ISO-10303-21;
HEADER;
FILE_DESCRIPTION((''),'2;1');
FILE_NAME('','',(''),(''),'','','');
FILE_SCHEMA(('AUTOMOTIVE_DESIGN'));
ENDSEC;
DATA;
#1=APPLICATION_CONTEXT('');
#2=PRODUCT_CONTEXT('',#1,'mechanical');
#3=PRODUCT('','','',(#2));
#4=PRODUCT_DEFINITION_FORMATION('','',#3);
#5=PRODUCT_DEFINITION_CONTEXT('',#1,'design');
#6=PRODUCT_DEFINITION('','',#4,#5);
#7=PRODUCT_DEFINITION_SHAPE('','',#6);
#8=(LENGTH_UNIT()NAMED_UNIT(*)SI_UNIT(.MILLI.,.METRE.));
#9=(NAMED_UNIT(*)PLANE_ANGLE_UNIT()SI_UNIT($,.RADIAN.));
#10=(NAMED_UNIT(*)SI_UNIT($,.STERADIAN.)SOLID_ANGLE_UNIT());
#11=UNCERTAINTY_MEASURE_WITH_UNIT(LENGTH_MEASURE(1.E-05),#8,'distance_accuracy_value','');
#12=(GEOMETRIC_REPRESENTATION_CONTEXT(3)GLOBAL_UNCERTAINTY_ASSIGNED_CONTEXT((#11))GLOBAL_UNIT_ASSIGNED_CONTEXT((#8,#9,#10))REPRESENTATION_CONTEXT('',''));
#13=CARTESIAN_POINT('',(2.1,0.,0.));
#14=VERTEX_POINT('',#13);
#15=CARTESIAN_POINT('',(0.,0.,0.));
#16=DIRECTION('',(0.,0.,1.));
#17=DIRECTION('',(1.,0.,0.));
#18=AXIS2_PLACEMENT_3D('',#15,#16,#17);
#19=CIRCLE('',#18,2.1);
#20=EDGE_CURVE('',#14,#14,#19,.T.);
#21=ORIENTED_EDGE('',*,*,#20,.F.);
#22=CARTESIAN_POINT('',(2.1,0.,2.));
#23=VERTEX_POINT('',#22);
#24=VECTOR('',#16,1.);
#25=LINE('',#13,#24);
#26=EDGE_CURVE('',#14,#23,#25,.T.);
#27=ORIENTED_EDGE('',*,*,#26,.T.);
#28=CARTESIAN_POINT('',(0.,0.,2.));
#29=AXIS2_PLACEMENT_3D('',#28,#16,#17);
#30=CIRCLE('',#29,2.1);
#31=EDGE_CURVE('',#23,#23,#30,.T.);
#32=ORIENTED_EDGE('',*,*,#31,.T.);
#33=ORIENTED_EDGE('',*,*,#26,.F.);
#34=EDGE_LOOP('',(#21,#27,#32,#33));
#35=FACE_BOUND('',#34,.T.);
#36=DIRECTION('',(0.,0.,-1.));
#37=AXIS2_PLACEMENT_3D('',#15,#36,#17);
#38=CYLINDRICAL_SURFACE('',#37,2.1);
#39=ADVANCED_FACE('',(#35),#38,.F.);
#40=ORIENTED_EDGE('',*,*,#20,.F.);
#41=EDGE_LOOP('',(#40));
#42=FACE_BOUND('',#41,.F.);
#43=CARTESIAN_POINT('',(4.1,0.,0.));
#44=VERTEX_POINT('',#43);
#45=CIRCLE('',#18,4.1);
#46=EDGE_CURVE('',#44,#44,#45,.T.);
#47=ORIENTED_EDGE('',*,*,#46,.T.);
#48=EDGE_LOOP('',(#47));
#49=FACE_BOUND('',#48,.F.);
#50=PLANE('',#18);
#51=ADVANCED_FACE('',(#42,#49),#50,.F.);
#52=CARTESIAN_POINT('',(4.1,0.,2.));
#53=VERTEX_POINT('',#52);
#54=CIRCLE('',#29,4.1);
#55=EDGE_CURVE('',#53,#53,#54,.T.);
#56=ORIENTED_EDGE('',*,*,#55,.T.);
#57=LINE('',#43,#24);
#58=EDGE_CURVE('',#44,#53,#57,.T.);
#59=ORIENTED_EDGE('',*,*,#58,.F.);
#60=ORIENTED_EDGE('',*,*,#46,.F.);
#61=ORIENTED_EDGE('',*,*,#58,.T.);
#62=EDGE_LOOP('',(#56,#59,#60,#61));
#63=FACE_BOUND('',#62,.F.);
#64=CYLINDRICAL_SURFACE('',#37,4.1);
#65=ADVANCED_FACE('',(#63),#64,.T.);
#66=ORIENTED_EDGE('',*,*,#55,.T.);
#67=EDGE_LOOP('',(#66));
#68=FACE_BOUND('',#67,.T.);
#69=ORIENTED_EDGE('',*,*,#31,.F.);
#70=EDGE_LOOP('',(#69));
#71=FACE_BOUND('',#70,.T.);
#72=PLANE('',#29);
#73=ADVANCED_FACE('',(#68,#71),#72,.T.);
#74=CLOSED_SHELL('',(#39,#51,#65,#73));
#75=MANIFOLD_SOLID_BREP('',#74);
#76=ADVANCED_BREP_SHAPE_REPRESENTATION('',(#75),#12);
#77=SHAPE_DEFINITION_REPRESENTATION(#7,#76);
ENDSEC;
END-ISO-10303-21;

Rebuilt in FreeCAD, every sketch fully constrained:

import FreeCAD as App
import Part
import Sketcher
Q = App.Units.Quantity

doc = App.newDocument("Part")
body = doc.addObject("PartDesign::Body", "Body")

# Sketch on XY plane
sketch1 = body.newObject("Sketcher::SketchObject", "Sketch")
sketch1.AttachmentSupport = (doc.getObject("XY_Plane"), [""])
sketch1.MapMode = "FlatFace"
sketch1.addGeometry([
    Part.Circle(App.Vector(0, 0, 0), App.Vector(0, 0, 1), 4.1),
    Part.Circle(App.Vector(0, 0, 0), App.Vector(0, 0, 1), 2.1),
], False)
sketch1.addConstraint([
    Sketcher.Constraint("Coincident", 0, 3, -1, 1),
    Sketcher.Constraint("Coincident", 1, 3, -1, 1),
    Sketcher.Constraint("Diameter", 1, Q("4.2 mm")),
    Sketcher.Constraint("Diameter", 0, Q("8.2 mm")),
])
pad1 = body.newObject("PartDesign::Pad", "Pad")
pad1.Profile = sketch1
pad1.Length = 2

doc.recompute()
